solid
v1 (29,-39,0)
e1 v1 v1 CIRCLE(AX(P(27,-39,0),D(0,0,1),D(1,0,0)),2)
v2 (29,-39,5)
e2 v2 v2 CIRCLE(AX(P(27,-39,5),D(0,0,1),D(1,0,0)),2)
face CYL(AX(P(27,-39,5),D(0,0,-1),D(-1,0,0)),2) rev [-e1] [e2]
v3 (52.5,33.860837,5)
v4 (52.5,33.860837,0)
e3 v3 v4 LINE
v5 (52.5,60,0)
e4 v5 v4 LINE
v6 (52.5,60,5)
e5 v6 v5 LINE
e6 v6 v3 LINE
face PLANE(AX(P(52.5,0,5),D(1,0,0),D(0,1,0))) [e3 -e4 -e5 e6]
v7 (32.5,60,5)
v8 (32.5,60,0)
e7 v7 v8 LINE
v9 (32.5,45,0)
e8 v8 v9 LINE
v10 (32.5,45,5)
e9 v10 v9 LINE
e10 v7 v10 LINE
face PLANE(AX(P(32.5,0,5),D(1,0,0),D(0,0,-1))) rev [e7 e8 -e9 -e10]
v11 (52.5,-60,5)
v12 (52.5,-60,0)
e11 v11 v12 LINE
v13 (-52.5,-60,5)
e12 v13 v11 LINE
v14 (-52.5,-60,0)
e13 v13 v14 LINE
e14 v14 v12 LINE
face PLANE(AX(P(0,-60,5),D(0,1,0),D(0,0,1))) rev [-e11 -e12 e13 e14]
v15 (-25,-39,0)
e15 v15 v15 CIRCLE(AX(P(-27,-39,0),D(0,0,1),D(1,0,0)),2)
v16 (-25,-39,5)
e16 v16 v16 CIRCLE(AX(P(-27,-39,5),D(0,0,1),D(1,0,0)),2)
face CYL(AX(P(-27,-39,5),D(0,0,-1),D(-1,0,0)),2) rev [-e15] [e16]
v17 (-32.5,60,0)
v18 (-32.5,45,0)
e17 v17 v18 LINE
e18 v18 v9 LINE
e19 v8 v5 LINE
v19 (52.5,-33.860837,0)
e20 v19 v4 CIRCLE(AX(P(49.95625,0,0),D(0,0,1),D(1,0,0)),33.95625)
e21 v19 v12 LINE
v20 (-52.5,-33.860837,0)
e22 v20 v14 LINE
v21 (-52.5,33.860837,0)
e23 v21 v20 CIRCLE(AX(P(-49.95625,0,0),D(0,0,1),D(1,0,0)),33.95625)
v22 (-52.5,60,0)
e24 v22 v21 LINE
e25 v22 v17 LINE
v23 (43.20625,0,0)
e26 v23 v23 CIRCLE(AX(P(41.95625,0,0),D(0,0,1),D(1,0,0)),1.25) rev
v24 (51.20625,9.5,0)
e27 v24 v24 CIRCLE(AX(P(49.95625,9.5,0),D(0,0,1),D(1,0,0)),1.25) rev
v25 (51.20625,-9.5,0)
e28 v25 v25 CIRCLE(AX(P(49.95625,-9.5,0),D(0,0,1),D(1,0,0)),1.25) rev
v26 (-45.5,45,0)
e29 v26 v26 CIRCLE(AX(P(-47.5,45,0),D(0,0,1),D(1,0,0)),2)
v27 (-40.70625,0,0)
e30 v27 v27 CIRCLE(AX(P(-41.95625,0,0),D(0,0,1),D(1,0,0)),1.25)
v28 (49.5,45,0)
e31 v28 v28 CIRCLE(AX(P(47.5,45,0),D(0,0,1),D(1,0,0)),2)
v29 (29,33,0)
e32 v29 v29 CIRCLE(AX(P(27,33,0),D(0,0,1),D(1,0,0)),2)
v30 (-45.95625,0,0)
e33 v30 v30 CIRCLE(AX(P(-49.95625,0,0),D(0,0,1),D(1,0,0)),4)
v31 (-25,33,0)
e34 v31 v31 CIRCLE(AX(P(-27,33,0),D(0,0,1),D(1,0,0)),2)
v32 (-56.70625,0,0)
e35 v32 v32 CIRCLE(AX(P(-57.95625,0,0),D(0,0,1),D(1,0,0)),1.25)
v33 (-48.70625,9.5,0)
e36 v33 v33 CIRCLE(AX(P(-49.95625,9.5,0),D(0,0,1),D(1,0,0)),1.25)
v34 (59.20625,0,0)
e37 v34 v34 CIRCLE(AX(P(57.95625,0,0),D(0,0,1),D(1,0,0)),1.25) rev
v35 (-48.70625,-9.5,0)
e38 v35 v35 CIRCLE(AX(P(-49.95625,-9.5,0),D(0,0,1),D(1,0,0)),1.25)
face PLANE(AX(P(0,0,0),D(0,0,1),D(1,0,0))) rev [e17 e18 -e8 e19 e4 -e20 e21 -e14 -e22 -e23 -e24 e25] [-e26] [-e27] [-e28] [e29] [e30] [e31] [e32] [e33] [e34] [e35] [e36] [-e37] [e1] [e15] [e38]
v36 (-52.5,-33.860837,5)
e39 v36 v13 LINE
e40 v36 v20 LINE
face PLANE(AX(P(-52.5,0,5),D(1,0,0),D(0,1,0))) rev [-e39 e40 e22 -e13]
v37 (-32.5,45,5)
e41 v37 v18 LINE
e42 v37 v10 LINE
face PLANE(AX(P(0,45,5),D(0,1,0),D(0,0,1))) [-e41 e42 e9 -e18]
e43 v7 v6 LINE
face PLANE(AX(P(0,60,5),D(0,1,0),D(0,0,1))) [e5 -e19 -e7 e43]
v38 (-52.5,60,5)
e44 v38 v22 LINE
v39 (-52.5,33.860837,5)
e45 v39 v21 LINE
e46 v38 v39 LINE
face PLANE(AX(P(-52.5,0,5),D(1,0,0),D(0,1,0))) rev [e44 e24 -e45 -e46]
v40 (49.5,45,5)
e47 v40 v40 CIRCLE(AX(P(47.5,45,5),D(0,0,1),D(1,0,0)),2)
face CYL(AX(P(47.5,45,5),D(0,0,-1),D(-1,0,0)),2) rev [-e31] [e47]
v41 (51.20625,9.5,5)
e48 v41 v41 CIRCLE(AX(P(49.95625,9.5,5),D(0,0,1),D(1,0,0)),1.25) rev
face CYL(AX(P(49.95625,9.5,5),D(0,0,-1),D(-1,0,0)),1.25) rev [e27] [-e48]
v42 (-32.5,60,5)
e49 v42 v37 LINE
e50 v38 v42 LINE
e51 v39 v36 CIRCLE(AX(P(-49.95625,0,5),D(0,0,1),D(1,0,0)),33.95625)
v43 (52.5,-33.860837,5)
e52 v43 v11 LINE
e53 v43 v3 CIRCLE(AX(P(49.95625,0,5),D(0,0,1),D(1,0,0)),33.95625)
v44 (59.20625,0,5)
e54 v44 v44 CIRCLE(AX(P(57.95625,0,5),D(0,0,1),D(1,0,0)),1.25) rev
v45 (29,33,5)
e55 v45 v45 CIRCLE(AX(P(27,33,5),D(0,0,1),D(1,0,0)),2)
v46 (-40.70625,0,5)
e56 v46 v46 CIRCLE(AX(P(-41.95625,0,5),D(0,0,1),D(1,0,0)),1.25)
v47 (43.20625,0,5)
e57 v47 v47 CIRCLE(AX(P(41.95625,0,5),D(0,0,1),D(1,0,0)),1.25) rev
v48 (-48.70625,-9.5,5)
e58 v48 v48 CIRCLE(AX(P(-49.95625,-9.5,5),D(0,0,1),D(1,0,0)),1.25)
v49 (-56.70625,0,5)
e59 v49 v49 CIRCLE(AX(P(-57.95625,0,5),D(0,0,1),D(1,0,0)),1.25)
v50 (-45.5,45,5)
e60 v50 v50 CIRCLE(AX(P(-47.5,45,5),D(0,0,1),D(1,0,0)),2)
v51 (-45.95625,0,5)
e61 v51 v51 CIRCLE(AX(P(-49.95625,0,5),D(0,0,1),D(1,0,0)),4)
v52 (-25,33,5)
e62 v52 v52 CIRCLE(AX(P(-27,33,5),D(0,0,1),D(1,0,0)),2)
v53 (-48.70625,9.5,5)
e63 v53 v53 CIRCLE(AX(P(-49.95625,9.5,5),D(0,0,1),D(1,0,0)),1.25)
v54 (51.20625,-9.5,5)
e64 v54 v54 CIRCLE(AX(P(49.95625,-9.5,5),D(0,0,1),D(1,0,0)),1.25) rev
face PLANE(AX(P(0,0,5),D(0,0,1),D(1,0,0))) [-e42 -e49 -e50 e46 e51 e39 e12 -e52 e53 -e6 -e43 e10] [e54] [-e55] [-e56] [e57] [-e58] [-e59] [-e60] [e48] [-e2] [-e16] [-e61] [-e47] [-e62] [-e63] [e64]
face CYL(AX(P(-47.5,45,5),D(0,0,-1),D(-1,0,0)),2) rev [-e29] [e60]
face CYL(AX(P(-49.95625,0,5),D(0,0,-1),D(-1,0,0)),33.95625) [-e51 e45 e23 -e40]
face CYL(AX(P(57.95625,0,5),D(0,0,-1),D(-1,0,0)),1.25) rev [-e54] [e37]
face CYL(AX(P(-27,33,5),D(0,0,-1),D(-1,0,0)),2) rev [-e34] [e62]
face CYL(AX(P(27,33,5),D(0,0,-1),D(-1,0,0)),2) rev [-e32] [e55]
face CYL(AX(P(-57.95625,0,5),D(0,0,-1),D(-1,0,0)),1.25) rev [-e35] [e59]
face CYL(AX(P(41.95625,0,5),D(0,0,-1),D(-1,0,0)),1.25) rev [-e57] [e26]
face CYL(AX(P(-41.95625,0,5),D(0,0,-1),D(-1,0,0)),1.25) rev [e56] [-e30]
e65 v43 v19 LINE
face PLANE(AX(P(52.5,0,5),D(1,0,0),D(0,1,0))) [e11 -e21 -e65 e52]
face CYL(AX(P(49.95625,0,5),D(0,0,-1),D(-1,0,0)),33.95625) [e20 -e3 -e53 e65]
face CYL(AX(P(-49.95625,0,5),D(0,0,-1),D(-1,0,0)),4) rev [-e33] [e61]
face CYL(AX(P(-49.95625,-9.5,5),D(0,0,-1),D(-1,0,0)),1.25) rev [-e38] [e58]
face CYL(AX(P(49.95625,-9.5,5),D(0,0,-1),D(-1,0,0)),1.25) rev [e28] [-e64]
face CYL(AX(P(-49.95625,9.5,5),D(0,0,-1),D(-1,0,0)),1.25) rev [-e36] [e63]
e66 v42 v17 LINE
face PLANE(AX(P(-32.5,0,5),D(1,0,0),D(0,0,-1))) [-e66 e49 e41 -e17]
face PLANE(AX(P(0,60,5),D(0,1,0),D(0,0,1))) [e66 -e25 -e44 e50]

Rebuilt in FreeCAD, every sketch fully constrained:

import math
import FreeCAD as App
import Part
import Sketcher

V = App.Vector

doc = App.newDocument("Part")
body = doc.addObject("PartDesign::Body", "Body")

sketch1 = doc.addObject("Sketcher::SketchObject", "Sketch")
body.addObject(sketch1)
sketch1.AttachmentSupport = (doc.XY_Plane, [""])
sketch1.MapMode = "FlatFace"
sketch1.addGeometry(Part.LineSegment(V(-32.5, 60, 0), V(-52.5, 60, 0)), False)
sketch1.addGeometry(Part.LineSegment(V(-52.5, 60, 0), V(-52.5, 33.860837, 0)), False)
sketch1.addGeometry(Part.ArcOfCircle(Part.Circle(V(-49.95625, 0, 0), V(0, 0, 1), 33.95625), math.radians(94.296199), math.radians(265.703801)), False)
sketch1.addGeometry(Part.LineSegment(V(-52.5, -33.860837, 0), V(-52.5, -60, 0)), False)
sketch1.addGeometry(Part.LineSegment(V(-52.5, -60, 0), V(52.5, -60, 0)), False)
sketch1.addGeometry(Part.LineSegment(V(52.5, -60, 0), V(52.5, -33.860837, 0)), False)
sketch1.addGeometry(Part.ArcOfCircle(Part.Circle(V(49.95625, 0, 0), V(0, 0, 1), 33.95625), math.radians(-85.703801), math.radians(85.703801)), False)
sketch1.addGeometry(Part.LineSegment(V(52.5, 33.860837, 0), V(52.5, 60, 0)), False)
sketch1.addGeometry(Part.LineSegment(V(52.5, 60, 0), V(32.5, 60, 0)), False)
sketch1.addGeometry(Part.LineSegment(V(32.5, 60, 0), V(32.5, 45, 0)), False)
sketch1.addGeometry(Part.LineSegment(V(32.5, 45, 0), V(-32.5, 45, 0)), False)
sketch1.addGeometry(Part.LineSegment(V(-32.5, 45, 0), V(-32.5, 60, 0)), False)
sketch1.addGeometry(Part.Circle(V(-27, -39, 0), V(0, 0, 1), 2), False)
sketch1.addGeometry(Part.Circle(V(-49.95625, -9.5, 0), V(0, 0, 1), 1.25), False)
sketch1.addGeometry(Part.Circle(V(-57.95625, 0, 0), V(0, 0, 1), 1.25), False)
sketch1.addGeometry(Part.Circle(V(-49.95625, 0, 0), V(0, 0, 1), 4), False)
sketch1.addGeometry(Part.Circle(V(-41.95625, 0, 0), V(0, 0, 1), 1.25), False)
sketch1.addGeometry(Part.Circle(V(27, -39, 0), V(0, 0, 1), 2), False)
sketch1.addGeometry(Part.Circle(V(49.95625, -9.5, 0), V(0, 0, 1), 1.25), False)
sketch1.addGeometry(Part.Circle(V(41.95625, 0, 0), V(0, 0, 1), 1.25), False)
sketch1.addGeometry(Part.Circle(V(57.95625, 0, 0), V(0, 0, 1), 1.25), False)
sketch1.addGeometry(Part.Circle(V(-49.95625, 9.5, 0), V(0, 0, 1), 1.25), False)
sketch1.addGeometry(Part.Circle(V(-47.5, 45, 0), V(0, 0, 1), 2), False)
sketch1.addGeometry(Part.Circle(V(-27, 33, 0), V(0, 0, 1), 2), False)
sketch1.addGeometry(Part.Circle(V(49.95625, 9.5, 0), V(0, 0, 1), 1.25), False)
sketch1.addGeometry(Part.Circle(V(27, 33, 0), V(0, 0, 1), 2), False)
sketch1.addGeometry(Part.Circle(V(47.5, 45, 0), V(0, 0, 1), 2), False)
sketch1.addConstraint(Sketcher.Constraint("Coincident", 0, 2, 1, 1))
sketch1.addConstraint(Sketcher.Constraint("Coincident", 1, 2, 2, 1))
sketch1.addConstraint(Sketcher.Constraint("Coincident", 2, 2, 3, 1))
sketch1.addConstraint(Sketcher.Constraint("Coincident", 3, 2, 4, 1))
sketch1.addConstraint(Sketcher.Constraint("Coincident", 4, 2, 5, 1))
sketch1.addConstraint(Sketcher.Constraint("Coincident", 5, 2, 6, 1))
sketch1.addConstraint(Sketcher.Constraint("Coincident", 6, 2, 7, 1))
sketch1.addConstraint(Sketcher.Constraint("Coincident", 7, 2, 8, 1))
sketch1.addConstraint(Sketcher.Constraint("Coincident", 8, 2, 9, 1))
sketch1.addConstraint(Sketcher.Constraint("Coincident", 9, 2, 10, 1))
sketch1.addConstraint(Sketcher.Constraint("Coincident", 10, 2, 11, 1))
sketch1.addConstraint(Sketcher.Constraint("Coincident", 11, 2, 0, 1))
sketch1.addConstraint(Sketcher.Constraint("Horizontal", 0))
sketch1.addConstraint(Sketcher.Constraint("Vertical", 1))
sketch1.addConstraint(Sketcher.Constraint("Vertical", 3))
sketch1.addConstraint(Sketcher.Constraint("Horizontal", 4))
sketch1.addConstraint(Sketcher.Constraint("Vertical", 5))
sketch1.addConstraint(Sketcher.Constraint("Vertical", 7))
sketch1.addConstraint(Sketcher.Constraint("Horizontal", 8))
sketch1.addConstraint(Sketcher.Constraint("Vertical", 9))
sketch1.addConstraint(Sketcher.Constraint("Horizontal", 10))
sketch1.addConstraint(Sketcher.Constraint("Vertical", 11))
sketch1.addConstraint(Sketcher.Constraint("Coincident", 15, 3, 2, 3))
sketch1.addConstraint(Sketcher.Constraint("Equal", 2, 6))
sketch1.addConstraint(Sketcher.Constraint("Equal", 13, 14))
sketch1.addConstraint(Sketcher.Constraint("Equal", 14, 16))
sketch1.addConstraint(Sketcher.Constraint("Equal", 12, 17))
sketch1.addConstraint(Sketcher.Constraint("Equal", 16, 18))
sketch1.addConstraint(Sketcher.Constraint("Equal", 18, 19))
sketch1.addConstraint(Sketcher.Constraint("Equal", 19, 20))
sketch1.addConstraint(Sketcher.Constraint("Equal", 20, 21))
sketch1.addConstraint(Sketcher.Constraint("Equal", 17, 22))
sketch1.addConstraint(Sketcher.Constraint("Equal", 22, 23))
sketch1.addConstraint(Sketcher.Constraint("Equal", 21, 24))
sketch1.addConstraint(Sketcher.Constraint("Equal", 23, 25))
sketch1.addConstraint(Sketcher.Constraint("Equal", 25, 26))
sketch1.addConstraint(Sketcher.Constraint("Symmetric", 2, 3, 6, 3, -1, 1))
sketch1.addConstraint(Sketcher.Constraint("Symmetric", 16, 3, 19, 3, -1, 1))
sketch1.addConstraint(Sketcher.Constraint("Symmetric", 14, 3, 20, 3, -1, 1))
sketch1.addConstraint(Sketcher.Constraint("Symmetric", 18, 3, 21, 3, -1, 1))
sketch1.addConstraint(Sketcher.Constraint("Symmetric", 13, 3, 24, 3, -1, 1))
sketch1.addConstraint(Sketcher.Constraint("Symmetric", 0, 2, 4, 2, -1, 1))
sketch1.addConstraint(Sketcher.Constraint("Symmetric", 3, 2, 7, 2, -1, 1))
sketch1.addConstraint(Sketcher.Constraint("Symmetric", 12, 3, 17, 3, -2))
sketch1.addConstraint(Sketcher.Constraint("Symmetric", 13, 3, 18, 3, -2))
sketch1.addConstraint(Sketcher.Constraint("Symmetric", 23, 3, 25, 3, -2))
sketch1.addConstraint(Sketcher.Constraint("Symmetric", 22, 3, 26, 3, -2))
sketch1.addConstraint(Sketcher.Constraint("Symmetric", 2, 2, 5, 2, -2))
sketch1.addConstraint(Sketcher.Constraint("PointOnObject", 14, 3, -1))
sketch1.addConstraint(Sketcher.Constraint("PointOnObject", 16, 3, -1))
sketch1.addConstraint(Sketcher.Constraint("Horizontal", 26, 3, 9, 2))
sketch1.addConstraint(Sketcher.Constraint("Vertical", 2, 3, 13, 3))
sketch1.addConstraint(Sketcher.Constraint("Vertical", 12, 3, 23, 3))
sketch1.addConstraint(Sketcher.Constraint("Equal", 0, 8))
sketch1.addConstraint(Sketcher.Constraint("Diameter", 12, 4.0))
sketch1.addConstraint(Sketcher.Constraint("Diameter", 15, 8.0))
sketch1.addConstraint(Sketcher.Constraint("Diameter", 13, 2.5))
sketch1.addConstraint(Sketcher.Constraint("DistanceX", 0, 2, 0, 1, 20.0))
sketch1.addConstraint(Sketcher.Constraint("DistanceX", 4, 1, 4, 2, 105.0))
sketch1.addConstraint(Sketcher.Constraint("DistanceY", 9, 2, 9, 1, 15.0))
sketch1.addConstraint(Sketcher.Constraint("DistanceX", 12, 3, -1, 1, 27.0))
sketch1.addConstraint(Sketcher.Constraint("DistanceY", 12, 3, -1, 1, 39.0))
sketch1.addConstraint(Sketcher.Constraint("DistanceY", -1, 1, 22, 3, 45.0))
sketch1.addConstraint(Sketcher.Constraint("DistanceY", -1, 1, 23, 3, 33.0))
sketch1.addConstraint(Sketcher.Constraint("DistanceX", 14, 3, 2, 3, 8.0))
sketch1.addConstraint(Sketcher.Constraint("DistanceX", 2, 3, 16, 3, 8.0))
sketch1.addConstraint(Sketcher.Constraint("DistanceY", 13, 3, 21, 3, 19.0))
sketch1.addConstraint(Sketcher.Constraint("DistanceX", 0, 2, 22, 3, 5.0))
sketch1.addConstraint(Sketcher.Constraint("Radius", 2, 33.95625))
sketch1.addConstraint(Sketcher.Constraint("DistanceX", 2, 3, 6, 3, 99.9125))
pad1 = doc.addObject("PartDesign::Pad", "Pad")
body.addObject(pad1)
pad1.Profile = sketch1
pad1.Length = 5

doc.recompute()
